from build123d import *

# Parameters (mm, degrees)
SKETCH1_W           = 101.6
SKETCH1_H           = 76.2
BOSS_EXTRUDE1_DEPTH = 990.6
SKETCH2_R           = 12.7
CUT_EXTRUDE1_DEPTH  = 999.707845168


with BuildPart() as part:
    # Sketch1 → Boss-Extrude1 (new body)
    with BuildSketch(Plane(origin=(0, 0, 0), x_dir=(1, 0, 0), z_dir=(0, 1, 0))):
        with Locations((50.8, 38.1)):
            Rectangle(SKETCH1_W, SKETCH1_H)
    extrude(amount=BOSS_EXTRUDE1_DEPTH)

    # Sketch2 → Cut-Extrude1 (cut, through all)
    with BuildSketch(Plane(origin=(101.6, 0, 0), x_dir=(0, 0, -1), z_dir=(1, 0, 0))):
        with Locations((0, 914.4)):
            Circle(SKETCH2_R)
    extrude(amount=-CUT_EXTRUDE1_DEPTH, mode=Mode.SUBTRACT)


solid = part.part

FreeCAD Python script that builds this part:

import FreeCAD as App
import Part
import Sketcher
from FreeCAD import Vector
Q = App.Units.Quantity


def add_polygon(sketch, points):
    """Adds a closed chain of lines whose ends are joined by coincident constraints."""
    first, n = sketch.GeometryCount, len(points)
    for a, b in zip(points, points[1:] + points[:1]):
        sketch.addGeometry(Part.LineSegment(App.Vector(*a, 0), App.Vector(*b, 0)), False)
    for i in range(n):
        sketch.addConstraint(Sketcher.Constraint("Coincident", first + i, 2, first + (i + 1) % n, 1))

doc = App.newDocument("Part")
body = doc.addObject("PartDesign::Body", "Body")

# Sketch on XZ plane
sketch1 = body.newObject("Sketcher::SketchObject", "Sketch")
sketch1.AttachmentSupport = (doc.getObject("XZ_Plane"), [""])
sketch1.MapMode = "FlatFace"
add_polygon(sketch1, [(0, -76.2), (0, 0), (101.6, 0), (101.6, -76.2)])  # lines 0-3
sketch1.addConstraint(Sketcher.Constraint("Vertical", 0))
sketch1.addConstraint(Sketcher.Constraint("Horizontal", 1))
sketch1.addConstraint(Sketcher.Constraint("Vertical", 2))
sketch1.addConstraint(Sketcher.Constraint("Horizontal", 3))
sketch1.addConstraint(Sketcher.Constraint("Coincident", 0, 2, -1, 1))
sketch1.addConstraint(Sketcher.Constraint("DistanceX", 1, 1, 1, 2, Q("4 in")))
sketch1.addConstraint(Sketcher.Constraint("DistanceY", 0, 1, 0, 2, Q("3 in")))
pad1 = body.newObject("PartDesign::Pad", "Pad")
pad1.Profile = sketch1
pad1.Length = Q("39 in")
pad1.Reversed = True

# Sketch on YZ plane
sketch2 = body.newObject("Sketcher::SketchObject", "Sketch001")
sketch2.AttachmentSupport = (doc.getObject("YZ_Plane"), [""])
sketch2.MapMode = "FlatFace"
sketch2.AttachmentOffset = App.Placement(Vector(0, 0, 4 * 25.4), App.Rotation())
sketch2.addGeometry(Part.Circle(Vector(914.4, 0, 0), Vector(0, 0, 1), 12.7), False)
sketch2.addConstraint(Sketcher.Constraint("PointOnObject", 0, 3, -1))
sketch2.addConstraint(Sketcher.Constraint("Diameter", 0, Q("1 in")))
sketch2.addConstraint(Sketcher.Constraint("DistanceX", -1, 1, 0, 3, Q("36 in")))
pocket1 = body.newObject("PartDesign::Pocket", "Pocket")
pocket1.Profile = sketch2
pocket1.Type = "ThroughAll"

doc.recompute()
